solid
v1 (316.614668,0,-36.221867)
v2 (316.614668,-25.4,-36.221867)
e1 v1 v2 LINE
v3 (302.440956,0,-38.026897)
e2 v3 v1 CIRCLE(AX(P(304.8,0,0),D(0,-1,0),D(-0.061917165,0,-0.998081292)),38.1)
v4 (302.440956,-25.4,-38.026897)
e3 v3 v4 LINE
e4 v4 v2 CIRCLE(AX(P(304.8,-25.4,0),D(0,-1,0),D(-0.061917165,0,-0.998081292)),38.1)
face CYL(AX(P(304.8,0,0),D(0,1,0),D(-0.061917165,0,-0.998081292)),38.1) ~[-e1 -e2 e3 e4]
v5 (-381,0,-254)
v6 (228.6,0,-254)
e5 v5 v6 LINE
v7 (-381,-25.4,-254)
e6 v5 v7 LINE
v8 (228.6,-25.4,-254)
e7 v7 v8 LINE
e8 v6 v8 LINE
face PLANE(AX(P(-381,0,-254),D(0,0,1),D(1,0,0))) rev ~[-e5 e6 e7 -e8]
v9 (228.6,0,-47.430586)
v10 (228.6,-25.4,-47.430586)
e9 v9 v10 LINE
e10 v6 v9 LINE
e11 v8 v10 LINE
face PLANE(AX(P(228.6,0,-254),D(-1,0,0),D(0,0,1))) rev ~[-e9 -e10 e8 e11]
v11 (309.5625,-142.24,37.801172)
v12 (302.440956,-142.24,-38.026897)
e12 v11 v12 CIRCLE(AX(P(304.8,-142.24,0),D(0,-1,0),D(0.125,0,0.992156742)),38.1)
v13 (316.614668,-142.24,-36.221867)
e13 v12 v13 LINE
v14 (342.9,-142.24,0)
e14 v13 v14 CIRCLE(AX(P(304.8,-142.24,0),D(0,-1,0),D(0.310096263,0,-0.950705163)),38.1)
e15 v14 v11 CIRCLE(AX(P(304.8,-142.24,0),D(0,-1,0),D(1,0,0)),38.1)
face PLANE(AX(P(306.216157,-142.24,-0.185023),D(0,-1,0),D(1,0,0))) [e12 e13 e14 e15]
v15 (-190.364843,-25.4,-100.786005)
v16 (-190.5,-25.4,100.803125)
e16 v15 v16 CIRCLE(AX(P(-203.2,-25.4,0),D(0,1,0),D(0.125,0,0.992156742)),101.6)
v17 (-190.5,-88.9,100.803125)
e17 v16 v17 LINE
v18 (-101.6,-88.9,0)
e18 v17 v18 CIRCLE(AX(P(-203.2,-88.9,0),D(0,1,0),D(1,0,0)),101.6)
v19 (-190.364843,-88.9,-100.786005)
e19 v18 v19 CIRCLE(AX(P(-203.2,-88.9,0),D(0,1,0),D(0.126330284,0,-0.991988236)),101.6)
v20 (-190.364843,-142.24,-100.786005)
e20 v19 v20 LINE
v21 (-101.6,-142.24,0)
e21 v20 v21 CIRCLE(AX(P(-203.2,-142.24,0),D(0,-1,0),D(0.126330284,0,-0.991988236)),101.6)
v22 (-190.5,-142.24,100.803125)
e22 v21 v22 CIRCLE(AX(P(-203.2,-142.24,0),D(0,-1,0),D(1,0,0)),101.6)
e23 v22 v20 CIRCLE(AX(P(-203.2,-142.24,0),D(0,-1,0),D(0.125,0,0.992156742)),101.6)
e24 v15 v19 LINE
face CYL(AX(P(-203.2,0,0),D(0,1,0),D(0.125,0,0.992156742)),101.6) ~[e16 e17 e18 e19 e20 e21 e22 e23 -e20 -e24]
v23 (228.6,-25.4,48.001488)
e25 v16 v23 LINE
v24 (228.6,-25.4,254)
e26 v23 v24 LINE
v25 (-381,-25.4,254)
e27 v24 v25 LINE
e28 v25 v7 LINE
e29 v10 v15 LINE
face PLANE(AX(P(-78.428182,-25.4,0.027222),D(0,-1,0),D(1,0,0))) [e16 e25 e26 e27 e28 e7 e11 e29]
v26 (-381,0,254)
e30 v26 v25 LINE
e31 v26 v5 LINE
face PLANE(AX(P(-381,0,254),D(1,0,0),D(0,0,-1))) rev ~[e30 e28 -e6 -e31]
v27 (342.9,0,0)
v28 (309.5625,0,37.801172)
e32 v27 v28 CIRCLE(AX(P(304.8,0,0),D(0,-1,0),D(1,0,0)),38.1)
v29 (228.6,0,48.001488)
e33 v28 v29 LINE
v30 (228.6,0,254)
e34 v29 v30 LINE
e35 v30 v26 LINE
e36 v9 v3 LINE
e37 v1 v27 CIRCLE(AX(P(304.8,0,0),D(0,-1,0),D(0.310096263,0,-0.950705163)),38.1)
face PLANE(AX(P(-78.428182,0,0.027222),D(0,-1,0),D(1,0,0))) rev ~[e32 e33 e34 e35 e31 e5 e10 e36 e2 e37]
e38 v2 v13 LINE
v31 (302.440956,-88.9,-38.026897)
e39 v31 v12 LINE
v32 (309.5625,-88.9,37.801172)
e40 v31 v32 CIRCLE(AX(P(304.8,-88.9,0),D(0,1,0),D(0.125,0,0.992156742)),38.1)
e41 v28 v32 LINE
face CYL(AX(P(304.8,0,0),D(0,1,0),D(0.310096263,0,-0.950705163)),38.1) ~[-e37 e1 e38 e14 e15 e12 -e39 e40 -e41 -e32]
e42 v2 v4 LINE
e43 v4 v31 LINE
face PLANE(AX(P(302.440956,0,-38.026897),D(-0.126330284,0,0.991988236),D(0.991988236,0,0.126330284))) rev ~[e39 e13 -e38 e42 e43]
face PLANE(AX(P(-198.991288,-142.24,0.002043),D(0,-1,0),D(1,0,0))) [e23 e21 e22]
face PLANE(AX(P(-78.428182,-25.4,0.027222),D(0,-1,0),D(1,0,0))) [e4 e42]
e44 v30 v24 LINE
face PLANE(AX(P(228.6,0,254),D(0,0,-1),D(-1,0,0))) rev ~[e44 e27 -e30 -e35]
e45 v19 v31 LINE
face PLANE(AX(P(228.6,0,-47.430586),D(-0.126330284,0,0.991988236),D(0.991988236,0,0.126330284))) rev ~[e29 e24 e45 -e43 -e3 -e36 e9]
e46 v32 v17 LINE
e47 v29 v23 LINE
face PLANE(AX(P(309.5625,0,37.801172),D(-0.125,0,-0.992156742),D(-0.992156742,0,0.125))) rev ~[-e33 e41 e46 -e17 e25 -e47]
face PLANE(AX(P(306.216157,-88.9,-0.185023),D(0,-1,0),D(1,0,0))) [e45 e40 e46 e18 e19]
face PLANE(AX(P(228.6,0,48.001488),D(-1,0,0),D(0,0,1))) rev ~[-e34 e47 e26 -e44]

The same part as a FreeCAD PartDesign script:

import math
import FreeCAD as App
import Part
import Sketcher

V = App.Vector
Q = App.Units.Quantity

doc = App.newDocument("Part")
body = doc.addObject("PartDesign::Body", "Body")

sketch1 = doc.addObject("Sketcher::SketchObject", "Sketch")
body.addObject(sketch1)
sketch1.AttachmentSupport = (doc.XZ_Plane, [""])
sketch1.MapMode = "FlatFace"
sketch1.addGeometry(Part.LineSegment(V(-381, -254, 0), V(228.6, -254, 0)), False)
sketch1.addGeometry(Part.LineSegment(V(228.6, -254, 0), V(228.6, -47.430586, 0)), False)
sketch1.addGeometry(Part.LineSegment(V(228.6, -47.430586, 0), V(302.440956, -38.026897, 0)), False)
sketch1.addGeometry(Part.ArcOfCircle(Part.Circle(V(304.8, 0, 0), V(0, 0, 1), 38.1), math.radians(-93.549863), math.radians(-71.934968)), False)
sketch1.addGeometry(Part.ArcOfCircle(Part.Circle(V(304.8, 0, 0), V(0, 0, 1), 38.1), math.radians(-71.934968), math.radians(0)), False)
sketch1.addGeometry(Part.ArcOfCircle(Part.Circle(V(304.8, 0, 0), V(0, 0, 1), 38.1), math.radians(0), math.radians(82.819244)), False)
sketch1.addGeometry(Part.LineSegment(V(309.5625, 37.801172, 0), V(228.6, 48.001488, 0)), False)
sketch1.addGeometry(Part.LineSegment(V(228.6, 48.001488, 0), V(228.6, 254, 0)), False)
sketch1.addGeometry(Part.LineSegment(V(228.6, 254, 0), V(-381, 254, 0)), False)
sketch1.addGeometry(Part.LineSegment(V(-381, 254, 0), V(-381, -254, 0)), False)
sketch1.addConstraint(Sketcher.Constraint("Coincident", 0, 2, 1, 1))
sketch1.addConstraint(Sketcher.Constraint("Coincident", 1, 2, 2, 1))
sketch1.addConstraint(Sketcher.Constraint("Coincident", 2, 2, 3, 1))
sketch1.addConstraint(Sketcher.Constraint("Tangent", 3, 2, 4, 1))
sketch1.addConstraint(Sketcher.Constraint("Tangent", 4, 2, 5, 1))
sketch1.addConstraint(Sketcher.Constraint("Tangent", 5, 2, 6, 1))
sketch1.addConstraint(Sketcher.Constraint("Coincident", 6, 2, 7, 1))
sketch1.addConstraint(Sketcher.Constraint("Coincident", 7, 2, 8, 1))
sketch1.addConstraint(Sketcher.Constraint("Coincident", 8, 2, 9, 1))
sketch1.addConstraint(Sketcher.Constraint("Coincident", 9, 2, 0, 1))
sketch1.addConstraint(Sketcher.Constraint("Horizontal", 0))
sketch1.addConstraint(Sketcher.Constraint("Vertical", 1))
sketch1.addConstraint(Sketcher.Constraint("Vertical", 7))
sketch1.addConstraint(Sketcher.Constraint("Horizontal", 8))
sketch1.addConstraint(Sketcher.Constraint("Vertical", 9))
sketch1.addConstraint(Sketcher.Constraint("Coincident", 5, 3, 3, 3))
sketch1.addConstraint(Sketcher.Constraint("Symmetric", 0, 2, 7, 2, -1))
sketch1.addConstraint(Sketcher.Constraint("PointOnObject", 3, 3, -1))
sketch1.addConstraint(Sketcher.Constraint("PointOnObject", 4, 2, -1))
sketch1.addConstraint(Sketcher.Constraint("Radius", 3, Q("1.5 in")))
sketch1.addConstraint(Sketcher.Constraint("DistanceX", 0, 1, 0, 2, Q("24 in")))
sketch1.addConstraint(Sketcher.Constraint("DistanceY", 9, 2, 9, 1, Q("20 in")))
sketch1.addConstraint(Sketcher.Constraint("DistanceX", -1, 1, 3, 3, Q("12 in")))
sketch1.addConstraint(Sketcher.Constraint("DistanceX", -1, 1, 0, 2, Q("9 in")))
sketch1.addConstraint(Sketcher.Constraint("DistanceX", -1, 1, 5, 2, Q("12.1875 in")))
sketch1.addConstraint(Sketcher.Constraint("Distance", 2, Q("74.43733 mm")))
sketch1.addConstraint(Sketcher.Constraint("DistanceY", 1, 1, 1, 2, Q("206.569414 mm")))
sketch1.addConstraint(Sketcher.Constraint("DistanceX", 2, 2, 3, 2, Q("14.173712 mm")))
pad1 = doc.addObject("PartDesign::Pad", "Pad")
body.addObject(pad1)
pad1.Profile = sketch1
pad1.Length = Q("1 in")

sketch2 = doc.addObject("Sketcher::SketchObject", "Sketch001")
body.addObject(sketch2)
sketch2.AttachmentSupport = (doc.XZ_Plane, [""])
sketch2.MapMode = "FlatFace"
sketch2.addGeometry(Part.ArcOfCircle(Part.Circle(V(304.8, 0, 0), V(0, 0, 1), 38.1), math.radians(0), math.radians(82.819244)), False)
sketch2.addGeometry(Part.LineSegment(V(309.5625, 37.801172, 0), V(-190.5, 100.803125, 0)), False)
sketch2.addGeometry(Part.ArcOfCircle(Part.Circle(V(-203.2, 0, 0), V(0, 0, 1), 101.6), math.radians(82.819244), math.radians(277.257584)), False)
sketch2.addGeometry(Part.LineSegment(V(-190.364843, -100.786005, 0), V(302.440956, -38.026897, 0)), False)
sketch2.addGeometry(Part.LineSegment(V(302.440956, -38.026897, 0), V(316.614668, -36.221867, 0)), False)
sketch2.addGeometry(Part.ArcOfCircle(Part.Circle(V(304.8, 0, 0), V(0, 0, 1), 38.1), math.radians(-71.934968), math.radians(0)), False)
sketch2.addConstraint(Sketcher.Constraint("Tangent", 0, 2, 1, 1))
sketch2.addConstraint(Sketcher.Constraint("Tangent", 1, 2, 2, 1))
sketch2.addConstraint(Sketcher.Constraint("Tangent", 2, 2, 3, 1))
sketch2.addConstraint(Sketcher.Constraint("Coincident", 3, 2, 4, 1))
sketch2.addConstraint(Sketcher.Constraint("Coincident", 4, 2, 5, 1))
sketch2.addConstraint(Sketcher.Constraint("Tangent", 5, 2, 0, 1))
sketch2.addConstraint(Sketcher.Constraint("Equal", 0, 5))
sketch2.addConstraint(Sketcher.Constraint("PointOnObject", 0, 3, -1))
sketch2.addConstraint(Sketcher.Constraint("PointOnObject", 2, 3, -1))
sketch2.addConstraint(Sketcher.Constraint("PointOnObject", 5, 2, -1))
sketch2.addConstraint(Sketcher.Constraint("Parallel", 3, 4))
sketch2.addConstraint(Sketcher.Constraint("Radius", 2, Q("4 in")))
sketch2.addConstraint(Sketcher.Constraint("Radius", 0, Q("1.5 in")))
sketch2.addConstraint(Sketcher.Constraint("DistanceX", -1, 1, 0, 3, Q("12 in")))
sketch2.addConstraint(Sketcher.Constraint("DistanceX", 2, 3, -1, 1, Q("8 in")))
sketch2.addConstraint(Sketcher.Constraint("DistanceX", 2, 2, 3, 2, Q("492.805799 mm")))
sketch2.addConstraint(Sketcher.Constraint("Distance", 3, Q("496.785931 mm")))
pad2 = doc.addObject("PartDesign::Pad", "Pad001")
body.addObject(pad2)
pad2.Profile = sketch2
pad2.Length = Q("3.5 in")

sketch3 = doc.addObject("Sketcher::SketchObject", "Sketch002")
body.addObject(sketch3)
sketch3.AttachmentSupport = (doc.XZ_Plane, [""])
sketch3.MapMode = "FlatFace"
sketch3.addGeometry(Part.ArcOfCircle(Part.Circle(V(304.8, 0, 0), V(0, 0, 1), 38.1), math.radians(0), math.radians(82.819244)), False)
sketch3.addGeometry(Part.ArcOfCircle(Part.Circle(V(304.8, 0, 0), V(0, 0, 1), 38.1), math.radians(82.819244), math.radians(266.450137)), False)
sketch3.addGeometry(Part.LineSegment(V(302.440956, -38.026897, 0), V(316.614668, -36.221867, 0)), False)
sketch3.addGeometry(Part.ArcOfCircle(Part.Circle(V(304.8, 0, 0), V(0, 0, 1), 38.1), math.radians(-71.934968), math.radians(0)), False)
sketch3.addGeometry(Part.ArcOfCircle(Part.Circle(V(-203.2, 0, 0), V(0, 0, 1), 101.6), math.radians(0), math.radians(82.819244)), False)
sketch3.addGeometry(Part.ArcOfCircle(Part.Circle(V(-203.2, 0, 0), V(0, 0, 1), 101.6), math.radians(82.819244), math.radians(277.257584)), False)
sketch3.addGeometry(Part.ArcOfCircle(Part.Circle(V(-203.2, 0, 0), V(0, 0, 1), 101.6), math.radians(-82.742416), math.radians(0)), False)
sketch3.addConstraint(Sketcher.Constraint("Tangent", 0, 2, 1, 1))
sketch3.addConstraint(Sketcher.Constraint("Coincident", 1, 2, 2, 1))
sketch3.addConstraint(Sketcher.Constraint("Coincident", 2, 2, 3, 1))
sketch3.addConstraint(Sketcher.Constraint("Tangent", 3, 2, 0, 1))
sketch3.addConstraint(Sketcher.Constraint("Tangent", 4, 2, 5, 1))
sketch3.addConstraint(Sketcher.Constraint("Tangent", 5, 2, 6, 1))
sketch3.addConstraint(Sketcher.Constraint("Tangent", 6, 2, 4, 1))
sketch3.addConstraint(Sketcher.Constraint("Equal", 0, 1))
sketch3.addConstraint(Sketcher.Constraint("Equal", 1, 3))
sketch3.addConstraint(Sketcher.Constraint("PointOnObject", 0, 3, -1))
sketch3.addConstraint(Sketcher.Constraint("PointOnObject", 4, 3, -1))
sketch3.addConstraint(Sketcher.Constraint("PointOnObject", 3, 2, -1))
sketch3.addConstraint(Sketcher.Constraint("PointOnObject", 6, 2, -1))
sketch3.addConstraint(Sketcher.Constraint("Radius", 4, Q("4 in")))
sketch3.addConstraint(Sketcher.Constraint("Radius", 0, Q("1.5 in")))
sketch3.addConstraint(Sketcher.Constraint("DistanceX", -1, 1, 0, 3, Q("12 in")))
sketch3.addConstraint(Sketcher.Constraint("DistanceX", 4, 3, -1, 1, Q("8 in")))
sketch3.addConstraint(Sketcher.Constraint("DistanceX", 4, 2, -1, 1, Q("7.5 in")))
sketch3.addConstraint(Sketcher.Constraint("DistanceX", -1, 1, 0, 2, Q("12.1875 in")))
sketch3.addConstraint(Sketcher.Constraint("DistanceX", 5, 2, 1, 2, Q("492.805799 mm")))
sketch3.addConstraint(Sketcher.Constraint("DistanceY", 1, 2, 0, 2, Q("75.828069 mm")))
sketch3.addConstraint(Sketcher.Constraint("DistanceX", 1, 2, 2, 2, Q("14.173712 mm")))
pad3 = doc.addObject("PartDesign::Pad", "Pad002")
body.addObject(pad3)
pad3.Profile = sketch3
pad3.Length = Q("5.6 in")

doc.recompute()
